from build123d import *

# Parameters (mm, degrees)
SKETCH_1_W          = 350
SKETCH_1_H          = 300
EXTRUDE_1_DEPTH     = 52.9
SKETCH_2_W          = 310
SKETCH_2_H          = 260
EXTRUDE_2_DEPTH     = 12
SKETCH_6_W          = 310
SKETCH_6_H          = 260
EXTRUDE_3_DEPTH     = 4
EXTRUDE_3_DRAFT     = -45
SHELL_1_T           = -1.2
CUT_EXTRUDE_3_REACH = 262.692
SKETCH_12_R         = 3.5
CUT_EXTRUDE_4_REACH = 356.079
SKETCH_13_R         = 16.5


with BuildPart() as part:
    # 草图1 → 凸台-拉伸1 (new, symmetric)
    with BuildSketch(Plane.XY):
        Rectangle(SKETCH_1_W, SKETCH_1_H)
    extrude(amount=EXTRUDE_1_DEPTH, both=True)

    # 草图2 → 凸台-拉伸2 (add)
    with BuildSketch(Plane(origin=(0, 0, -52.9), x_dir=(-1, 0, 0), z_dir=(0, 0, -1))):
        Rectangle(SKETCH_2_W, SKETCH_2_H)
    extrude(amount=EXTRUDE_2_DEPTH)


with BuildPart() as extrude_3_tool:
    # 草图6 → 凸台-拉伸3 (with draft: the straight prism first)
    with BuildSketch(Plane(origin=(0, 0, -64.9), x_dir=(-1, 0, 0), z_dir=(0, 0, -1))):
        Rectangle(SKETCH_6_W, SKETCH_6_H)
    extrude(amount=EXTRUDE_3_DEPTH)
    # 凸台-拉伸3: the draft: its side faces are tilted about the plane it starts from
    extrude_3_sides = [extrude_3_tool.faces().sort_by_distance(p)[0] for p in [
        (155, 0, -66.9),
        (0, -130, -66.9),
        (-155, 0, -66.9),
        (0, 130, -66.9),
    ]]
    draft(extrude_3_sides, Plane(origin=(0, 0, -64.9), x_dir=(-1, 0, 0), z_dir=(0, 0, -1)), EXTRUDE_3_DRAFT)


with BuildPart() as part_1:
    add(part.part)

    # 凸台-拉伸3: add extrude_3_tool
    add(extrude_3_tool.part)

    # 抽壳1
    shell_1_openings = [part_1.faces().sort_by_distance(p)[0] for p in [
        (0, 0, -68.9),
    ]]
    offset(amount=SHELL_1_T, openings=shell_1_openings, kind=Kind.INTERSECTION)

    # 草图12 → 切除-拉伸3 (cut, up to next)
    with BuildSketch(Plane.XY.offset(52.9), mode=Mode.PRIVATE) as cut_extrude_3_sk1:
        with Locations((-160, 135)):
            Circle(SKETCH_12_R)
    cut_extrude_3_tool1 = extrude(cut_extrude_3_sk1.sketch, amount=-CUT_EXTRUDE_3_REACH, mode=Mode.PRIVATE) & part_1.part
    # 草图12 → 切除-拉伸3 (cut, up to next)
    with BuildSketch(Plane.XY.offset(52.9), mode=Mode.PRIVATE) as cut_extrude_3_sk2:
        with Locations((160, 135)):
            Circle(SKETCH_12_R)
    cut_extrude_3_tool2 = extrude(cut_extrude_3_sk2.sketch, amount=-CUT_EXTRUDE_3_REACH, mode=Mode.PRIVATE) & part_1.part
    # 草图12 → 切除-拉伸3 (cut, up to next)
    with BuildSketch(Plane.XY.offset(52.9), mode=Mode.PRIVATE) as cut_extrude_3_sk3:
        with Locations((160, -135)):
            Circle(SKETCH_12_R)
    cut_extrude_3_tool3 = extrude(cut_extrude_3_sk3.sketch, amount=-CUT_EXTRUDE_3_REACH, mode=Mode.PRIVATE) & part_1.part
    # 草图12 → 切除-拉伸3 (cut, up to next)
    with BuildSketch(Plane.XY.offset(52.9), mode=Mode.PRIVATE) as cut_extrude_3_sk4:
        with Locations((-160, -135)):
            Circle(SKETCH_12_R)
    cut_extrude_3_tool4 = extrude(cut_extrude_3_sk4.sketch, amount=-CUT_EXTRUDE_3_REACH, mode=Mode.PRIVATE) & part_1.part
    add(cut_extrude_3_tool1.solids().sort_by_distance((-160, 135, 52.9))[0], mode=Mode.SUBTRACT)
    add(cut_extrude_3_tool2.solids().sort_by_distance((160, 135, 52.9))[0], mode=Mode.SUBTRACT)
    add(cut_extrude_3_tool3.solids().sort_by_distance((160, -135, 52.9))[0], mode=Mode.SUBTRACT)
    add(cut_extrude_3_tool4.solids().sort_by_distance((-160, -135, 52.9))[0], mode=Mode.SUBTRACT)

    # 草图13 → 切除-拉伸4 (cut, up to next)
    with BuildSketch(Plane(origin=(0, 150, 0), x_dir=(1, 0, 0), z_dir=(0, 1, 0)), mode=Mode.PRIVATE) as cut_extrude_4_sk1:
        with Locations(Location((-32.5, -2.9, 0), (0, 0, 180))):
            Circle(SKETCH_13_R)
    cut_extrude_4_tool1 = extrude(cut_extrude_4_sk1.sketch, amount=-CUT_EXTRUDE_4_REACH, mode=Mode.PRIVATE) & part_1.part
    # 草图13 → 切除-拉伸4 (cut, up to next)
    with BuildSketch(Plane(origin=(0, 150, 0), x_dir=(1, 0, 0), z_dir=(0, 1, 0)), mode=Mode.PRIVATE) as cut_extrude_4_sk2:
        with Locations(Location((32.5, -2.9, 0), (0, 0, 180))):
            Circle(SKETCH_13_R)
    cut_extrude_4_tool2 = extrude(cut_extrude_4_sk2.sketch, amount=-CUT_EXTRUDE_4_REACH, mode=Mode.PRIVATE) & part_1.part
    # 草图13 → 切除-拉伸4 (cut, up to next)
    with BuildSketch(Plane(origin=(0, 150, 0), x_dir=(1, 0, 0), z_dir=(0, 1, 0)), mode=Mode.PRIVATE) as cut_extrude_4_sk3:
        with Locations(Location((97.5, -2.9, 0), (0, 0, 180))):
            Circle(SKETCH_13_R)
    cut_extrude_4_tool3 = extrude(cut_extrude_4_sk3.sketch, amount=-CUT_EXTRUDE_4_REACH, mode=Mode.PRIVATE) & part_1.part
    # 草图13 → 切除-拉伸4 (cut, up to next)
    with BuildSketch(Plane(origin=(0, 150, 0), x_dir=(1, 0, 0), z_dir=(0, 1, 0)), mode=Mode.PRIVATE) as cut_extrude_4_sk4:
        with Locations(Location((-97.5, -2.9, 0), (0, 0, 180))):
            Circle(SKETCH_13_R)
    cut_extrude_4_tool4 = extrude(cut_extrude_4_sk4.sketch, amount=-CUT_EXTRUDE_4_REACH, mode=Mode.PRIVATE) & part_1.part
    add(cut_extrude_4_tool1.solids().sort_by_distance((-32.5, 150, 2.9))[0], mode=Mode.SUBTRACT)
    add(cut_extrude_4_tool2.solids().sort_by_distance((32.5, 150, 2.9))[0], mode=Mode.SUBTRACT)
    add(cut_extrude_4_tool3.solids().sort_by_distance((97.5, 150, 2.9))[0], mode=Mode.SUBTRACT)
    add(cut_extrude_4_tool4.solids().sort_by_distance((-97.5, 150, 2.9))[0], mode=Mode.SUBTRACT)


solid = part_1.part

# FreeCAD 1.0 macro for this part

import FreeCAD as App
import Part
import Sketcher
from FreeCAD import Vector


def faces_at(feature, points):
    """Names of the faces that lie closest to the given points."""
    faces = feature.Shape.Faces
    near = lambda p: min(range(len(faces)), key=lambda i: faces[i].distToShape(Part.Vertex(*p))[0])
    return sorted({f"Face{near(p) + 1}" for p in points})


def add_polygon(sketch, points):
    """Adds a closed chain of lines whose ends are joined by coincident constraints."""
    first, n = sketch.GeometryCount, len(points)
    for a, b in zip(points, points[1:] + points[:1]):
        sketch.addGeometry(Part.LineSegment(App.Vector(*a, 0), App.Vector(*b, 0)), False)
    for i in range(n):
        sketch.addConstraint(Sketcher.Constraint("Coincident", first + i, 2, first + (i + 1) % n, 1))

doc = App.newDocument("Part")
body = doc.addObject("PartDesign::Body", "Body")

# Sketch on XY plane
sketch1 = doc.addObject("Sketcher::SketchObject", "Sketch")
body.addObject(sketch1)
sketch1.AttachmentSupport = (doc.XY_Plane, [""])
sketch1.MapMode = "FlatFace"
add_polygon(sketch1, [(-175, 150), (-175, -150), (175, -150), (175, 150)])  # lines 0-3
sketch1.addConstraint(Sketcher.Constraint("Vertical", 0))
sketch1.addConstraint(Sketcher.Constraint("Horizontal", 1))
sketch1.addConstraint(Sketcher.Constraint("Vertical", 2))
sketch1.addConstraint(Sketcher.Constraint("Horizontal", 3))
sketch1.addConstraint(Sketcher.Constraint("Symmetric", 0, 2, 2, 2, -1, 1))
sketch1.addConstraint(Sketcher.Constraint("DistanceX", 1, 1, 1, 2, 350.0))
sketch1.addConstraint(Sketcher.Constraint("DistanceY", 0, 2, 0, 1, 300.0))
pad1 = doc.addObject("PartDesign::Pad", "Pad")
body.addObject(pad1)
pad1.Profile = sketch1
pad1.Length = 105.8
pad1.Midplane = True

# Sketch on XY plane
sketch2 = doc.addObject("Sketcher::SketchObject", "Sketch001")
body.addObject(sketch2)
sketch2.AttachmentSupport = (doc.XY_Plane, [""])
sketch2.MapMode = "FlatFace"
sketch2.AttachmentOffset = App.Placement(Vector(0, 0, -52.9), App.Rotation())
add_polygon(sketch2, [(155, 130), (155, -130), (-155, -130), (-155, 130)])  # lines 0-3
sketch2.addConstraint(Sketcher.Constraint("Vertical", 0))
sketch2.addConstraint(Sketcher.Constraint("Horizontal", 1))
sketch2.addConstraint(Sketcher.Constraint("Vertical", 2))
sketch2.addConstraint(Sketcher.Constraint("Horizontal", 3))
sketch2.addConstraint(Sketcher.Constraint("Symmetric", 0, 2, 2, 2, -1, 1))
sketch2.addConstraint(Sketcher.Constraint("DistanceX", 1, 2, 1, 1, 310.0))
sketch2.addConstraint(Sketcher.Constraint("DistanceY", 0, 2, 0, 1, 260.0))
pad2 = doc.addObject("PartDesign::Pad", "Pad001")
body.addObject(pad2)
pad2.Profile = sketch2
pad2.Length = 12
pad2.Reversed = True
body2 = doc.addObject("PartDesign::Body", "Body001")

# Sketch on XY plane
sketch3 = doc.addObject("Sketcher::SketchObject", "Sketch002")
body2.addObject(sketch3)
sketch3.AttachmentSupport = (doc.getObject("XY_Plane001"), [""])
sketch3.MapMode = "FlatFace"
sketch3.AttachmentOffset = App.Placement(Vector(0, 0, -64.9), App.Rotation())
add_polygon(sketch3, [(155, 130), (155, -130), (-155, -130), (-155, 130)])  # lines 0-3
sketch3.addConstraint(Sketcher.Constraint("Vertical", 0))
sketch3.addConstraint(Sketcher.Constraint("Horizontal", 1))
sketch3.addConstraint(Sketcher.Constraint("Vertical", 2))
sketch3.addConstraint(Sketcher.Constraint("Horizontal", 3))
sketch3.addConstraint(Sketcher.Constraint("Symmetric", 0, 2, 2, 2, -1, 1))
sketch3.addConstraint(Sketcher.Constraint("DistanceX", 1, 2, 1, 1, 310.0))
sketch3.addConstraint(Sketcher.Constraint("DistanceY", 0, 2, 0, 1, 260.0))
pad3 = doc.addObject("PartDesign::Pad", "Pad002")
body2.addObject(pad3)
pad3.Profile = sketch3
pad3.Length = 4
pad3.Reversed = True
doc.recompute()

datumplane = doc.addObject("PartDesign::Plane", "DatumPlane")
body2.addObject(datumplane)
datumplane.AttachmentSupport = (doc.getObject("XY_Plane001"), [""])
datumplane.MapMode = "FlatFace"
datumplane.AttachmentOffset = App.Placement(Vector(0, 0, -64.9), App.Rotation())
draft = doc.addObject("PartDesign::Draft", "Draft")
body2.addObject(draft)
draft.Base = (pad3, faces_at(pad3, [
    (155, 0, -66.9),
    (0, -130, -66.9),
    (-155, 0, -66.9),
    (0, 130, -66.9),
]))
draft.NeutralPlane = (datumplane, [""])
draft.Angle = 45
draft.Reversed = False
doc.recompute()

boolean = doc.addObject("PartDesign::Boolean", "Boolean")
body.addObject(boolean)
boolean.Type = "Fuse"
boolean.addObjects([body2])
doc.recompute()

thickness = doc.addObject("PartDesign::Thickness", "Thickness")
body.addObject(thickness)
thickness.Base = (boolean, faces_at(boolean, [(0, 0, -68.9)]))
thickness.Value = 1.2
thickness.Reversed = True
thickness.Join = "Intersection"

# Sketch on XY plane
sketch4 = doc.addObject("Sketcher::SketchObject", "Sketch003")
body.addObject(sketch4)
sketch4.AttachmentSupport = (doc.XY_Plane, [""])
sketch4.MapMode = "FlatFace"
sketch4.AttachmentOffset = App.Placement(Vector(0, 0, 52.9), App.Rotation())
sketch4.addGeometry(Part.Circle(Vector(-160, 135, 0), Vector(0, 0, 1), 3.5), False)
sketch4.addConstraint(Sketcher.Constraint("Diameter", 0, 7.0))
sketch4.addConstraint(Sketcher.Constraint("DistanceX", 0, 3, -1, 1, 160.0))
sketch4.addConstraint(Sketcher.Constraint("DistanceY", -1, 1, 0, 3, 135.0))
pocket1 = doc.addObject("PartDesign::Pocket", "Pocket")
body.addObject(pocket1)
pocket1.Profile = sketch4
pocket1.Type = "UpToFirst"

# Sketch on XY plane
sketch5 = doc.addObject("Sketcher::SketchObject", "Sketch004")
body.addObject(sketch5)
sketch5.AttachmentSupport = (doc.XY_Plane, [""])
sketch5.MapMode = "FlatFace"
sketch5.AttachmentOffset = App.Placement(Vector(0, 0, 52.9), App.Rotation())
sketch5.addGeometry(Part.Circle(Vector(160, 135, 0), Vector(0, 0, 1), 3.5), False)
sketch5.addConstraint(Sketcher.Constraint("Diameter", 0, 7.0))
sketch5.addConstraint(Sketcher.Constraint("DistanceX", -1, 1, 0, 3, 160.0))
sketch5.addConstraint(Sketcher.Constraint("DistanceY", -1, 1, 0, 3, 135.0))
pocket2 = doc.addObject("PartDesign::Pocket", "Pocket001")
body.addObject(pocket2)
pocket2.Profile = sketch5
pocket2.Type = "UpToFirst"

# Sketch on XY plane
sketch6 = doc.addObject("Sketcher::SketchObject", "Sketch005")
body.addObject(sketch6)
sketch6.AttachmentSupport = (doc.XY_Plane, [""])
sketch6.MapMode = "FlatFace"
sketch6.AttachmentOffset = App.Placement(Vector(0, 0, 52.9), App.Rotation())
sketch6.addGeometry(Part.Circle(Vector(160, -135, 0), Vector(0, 0, 1), 3.5), False)
sketch6.addConstraint(Sketcher.Constraint("Diameter", 0, 7.0))
sketch6.addConstraint(Sketcher.Constraint("DistanceX", -1, 1, 0, 3, 160.0))
sketch6.addConstraint(Sketcher.Constraint("DistanceY", 0, 3, -1, 1, 135.0))
pocket3 = doc.addObject("PartDesign::Pocket", "Pocket002")
body.addObject(pocket3)
pocket3.Profile = sketch6
pocket3.Type = "UpToFirst"

# Sketch on XY plane
sketch7 = doc.addObject("Sketcher::SketchObject", "Sketch006")
body.addObject(sketch7)
sketch7.AttachmentSupport = (doc.XY_Plane, [""])
sketch7.MapMode = "FlatFace"
sketch7.AttachmentOffset = App.Placement(Vector(0, 0, 52.9), App.Rotation())
sketch7.addGeometry(Part.Circle(Vector(-160, -135, 0), Vector(0, 0, 1), 3.5), False)
sketch7.addConstraint(Sketcher.Constraint("Diameter", 0, 7.0))
sketch7.addConstraint(Sketcher.Constraint("DistanceX", 0, 3, -1, 1, 160.0))
sketch7.addConstraint(Sketcher.Constraint("DistanceY", 0, 3, -1, 1, 135.0))
pocket4 = doc.addObject("PartDesign::Pocket", "Pocket003")
body.addObject(pocket4)
pocket4.Profile = sketch7
pocket4.Type = "UpToFirst"

# Sketch on XZ plane
sketch8 = doc.addObject("Sketcher::SketchObject", "Sketch007")
body.addObject(sketch8)
sketch8.AttachmentSupport = (doc.XZ_Plane, [""])
sketch8.MapMode = "FlatFace"
sketch8.AttachmentOffset = App.Placement(Vector(0, 0, -150), App.Rotation())
sketch8.addGeometry(Part.Circle(Vector(-32, 3, 0), Vector(0, 0, 1), 16), False)
sketch8.addConstraint(Sketcher.Constraint("Diameter", 0, 33.0))
sketch8.addConstraint(Sketcher.Constraint("DistanceX", 0, 3, -1, 1, 32.5))
sketch8.addConstraint(Sketcher.Constraint("DistanceY", -1, 1, 0, 3, 2.9))
pocket5 = doc.addObject("PartDesign::Pocket", "Pocket004")
body.addObject(pocket5)
pocket5.Profile = sketch8
pocket5.Type = "UpToFirst"
pocket5.Reversed = True

# Sketch on XZ plane
sketch9 = doc.addObject("Sketcher::SketchObject", "Sketch008")
body.addObject(sketch9)
sketch9.AttachmentSupport = (doc.XZ_Plane, [""])
sketch9.MapMode = "FlatFace"
sketch9.AttachmentOffset = App.Placement(Vector(0, 0, -150), App.Rotation())
sketch9.addGeometry(Part.Circle(Vector(32, 3, 0), Vector(0, 0, 1), 16), False)
sketch9.addConstraint(Sketcher.Constraint("Diameter", 0, 33.0))
sketch9.addConstraint(Sketcher.Constraint("DistanceX", -1, 1, 0, 3, 32.5))
sketch9.addConstraint(Sketcher.Constraint("DistanceY", -1, 1, 0, 3, 2.9))
pocket6 = doc.addObject("PartDesign::Pocket", "Pocket005")
body.addObject(pocket6)
pocket6.Profile = sketch9
pocket6.Type = "UpToFirst"
pocket6.Reversed = True

# Sketch on XZ plane
sketch10 = doc.addObject("Sketcher::SketchObject", "Sketch009")
body.addObject(sketch10)
sketch10.AttachmentSupport = (doc.XZ_Plane, [""])
sketch10.MapMode = "FlatFace"
sketch10.AttachmentOffset = App.Placement(Vector(0, 0, -150), App.Rotation())
sketch10.addGeometry(Part.Circle(Vector(98, 3, 0), Vector(0, 0, 1), 16), False)
sketch10.addConstraint(Sketcher.Constraint("Diameter", 0, 33.0))
sketch10.addConstraint(Sketcher.Constraint("DistanceX", -1, 1, 0, 3, 97.5))
sketch10.addConstraint(Sketcher.Constraint("DistanceY", -1, 1, 0, 3, 2.9))
pocket7 = doc.addObject("PartDesign::Pocket", "Pocket006")
body.addObject(pocket7)
pocket7.Profile = sketch10
pocket7.Type = "UpToFirst"
pocket7.Reversed = True

# Sketch on XZ plane
sketch11 = doc.addObject("Sketcher::SketchObject", "Sketch010")
body.addObject(sketch11)
sketch11.AttachmentSupport = (doc.XZ_Plane, [""])
sketch11.MapMode = "FlatFace"
sketch11.AttachmentOffset = App.Placement(Vector(0, 0, -150), App.Rotation())
sketch11.addGeometry(Part.Circle(Vector(-98, 3, 0), Vector(0, 0, 1), 16), False)
sketch11.addConstraint(Sketcher.Constraint("Diameter", 0, 33.0))
sketch11.addConstraint(Sketcher.Constraint("DistanceX", 0, 3, -1, 1, 97.5))
sketch11.addConstraint(Sketcher.Constraint("DistanceY", -1, 1, 0, 3, 2.9))
pocket8 = doc.addObject("PartDesign::Pocket", "Pocket007")
body.addObject(pocket8)
pocket8.Profile = sketch11
pocket8.Type = "UpToFirst"
pocket8.Reversed = True

doc.recompute()
